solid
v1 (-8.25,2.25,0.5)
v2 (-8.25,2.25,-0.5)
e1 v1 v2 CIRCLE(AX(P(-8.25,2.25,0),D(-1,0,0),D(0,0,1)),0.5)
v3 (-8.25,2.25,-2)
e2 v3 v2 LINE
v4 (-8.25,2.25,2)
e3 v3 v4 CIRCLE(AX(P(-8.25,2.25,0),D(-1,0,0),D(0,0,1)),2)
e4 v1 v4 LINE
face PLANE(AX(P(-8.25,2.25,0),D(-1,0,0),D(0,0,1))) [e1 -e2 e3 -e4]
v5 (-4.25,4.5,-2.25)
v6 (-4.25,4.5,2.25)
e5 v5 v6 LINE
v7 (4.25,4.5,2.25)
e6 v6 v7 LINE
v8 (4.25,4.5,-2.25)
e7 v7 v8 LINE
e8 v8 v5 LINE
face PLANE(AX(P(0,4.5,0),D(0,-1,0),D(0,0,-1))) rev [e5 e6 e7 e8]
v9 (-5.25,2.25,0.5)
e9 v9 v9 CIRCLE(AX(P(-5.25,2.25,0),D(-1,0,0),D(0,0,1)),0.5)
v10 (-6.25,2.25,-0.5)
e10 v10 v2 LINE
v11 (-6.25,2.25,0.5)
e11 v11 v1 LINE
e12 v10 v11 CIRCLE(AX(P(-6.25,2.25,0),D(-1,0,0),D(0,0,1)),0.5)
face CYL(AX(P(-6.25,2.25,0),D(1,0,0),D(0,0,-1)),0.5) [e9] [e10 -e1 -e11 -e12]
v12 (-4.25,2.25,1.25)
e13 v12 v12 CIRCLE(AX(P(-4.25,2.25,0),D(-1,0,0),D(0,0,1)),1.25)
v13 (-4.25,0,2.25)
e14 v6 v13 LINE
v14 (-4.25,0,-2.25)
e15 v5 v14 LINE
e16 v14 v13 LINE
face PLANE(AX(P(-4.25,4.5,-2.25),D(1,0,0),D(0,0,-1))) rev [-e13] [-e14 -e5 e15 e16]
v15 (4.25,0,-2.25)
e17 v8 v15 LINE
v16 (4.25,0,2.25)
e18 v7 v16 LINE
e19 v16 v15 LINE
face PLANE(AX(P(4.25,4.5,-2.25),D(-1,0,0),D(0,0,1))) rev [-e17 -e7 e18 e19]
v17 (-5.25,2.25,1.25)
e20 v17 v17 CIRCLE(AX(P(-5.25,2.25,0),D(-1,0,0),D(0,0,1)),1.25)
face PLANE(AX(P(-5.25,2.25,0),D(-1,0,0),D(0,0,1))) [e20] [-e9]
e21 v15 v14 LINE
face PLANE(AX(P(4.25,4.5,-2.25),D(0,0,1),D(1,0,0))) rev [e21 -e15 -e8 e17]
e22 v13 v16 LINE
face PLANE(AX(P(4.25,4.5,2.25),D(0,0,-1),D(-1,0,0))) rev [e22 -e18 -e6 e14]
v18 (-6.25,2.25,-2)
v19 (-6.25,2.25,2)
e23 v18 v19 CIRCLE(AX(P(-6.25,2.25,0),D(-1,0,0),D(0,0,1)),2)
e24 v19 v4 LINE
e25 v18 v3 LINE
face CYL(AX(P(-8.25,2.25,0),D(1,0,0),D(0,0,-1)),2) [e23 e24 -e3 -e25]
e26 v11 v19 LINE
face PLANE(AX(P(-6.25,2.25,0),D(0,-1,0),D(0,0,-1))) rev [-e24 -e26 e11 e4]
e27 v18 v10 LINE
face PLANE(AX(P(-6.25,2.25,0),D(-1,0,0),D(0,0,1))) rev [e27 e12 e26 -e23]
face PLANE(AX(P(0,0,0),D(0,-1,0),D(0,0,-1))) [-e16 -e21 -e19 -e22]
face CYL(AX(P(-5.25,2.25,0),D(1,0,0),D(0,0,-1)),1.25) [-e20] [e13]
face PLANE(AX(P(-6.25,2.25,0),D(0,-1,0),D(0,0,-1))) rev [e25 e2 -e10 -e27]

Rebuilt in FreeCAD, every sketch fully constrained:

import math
import FreeCAD as App
import Part
import Sketcher

V = App.Vector
Q = App.Units.Quantity


def add_polygon(sketch, points):
    """Adds a closed chain of lines whose ends are joined by coincident constraints."""
    first, n = sketch.GeometryCount, len(points)
    for a, b in zip(points, points[1:] + points[:1]):
        sketch.addGeometry(Part.LineSegment(App.Vector(*a, 0), App.Vector(*b, 0)), False)
    for i in range(n):
        sketch.addConstraint(Sketcher.Constraint("Coincident", first + i, 2, first + (i + 1) % n, 1))

doc = App.newDocument("Part")
params = doc.addObject("Spreadsheet::Sheet", "Params")
for row, (alias, value) in enumerate([
    ("sketch1_width", "8.5 mm"),
    ("sketch1_height", "4.5 mm"),
    ("pad1_length", "4.5 mm"),
    ("sketch2_diameter", "2.5 mm"),
    ("pad2_length", "1 mm"),
    ("sketch3_diameter", "1 mm"),
    ("pad3_length", "1 mm"),
    ("sketch4_diameter", "4 mm"),
    ("pad4_length", "2 mm"),
    ("sketch5_radius", "2 mm"),
    ("sketch5_radius2", "0.5 mm"),
    ("pocket1_length", "2 mm"),
], start=1):
    params.set(f"A{row}", alias)
    params.set(f"B{row}", "=" + value)
    params.setAlias(f"B{row}", alias)

body = doc.addObject("PartDesign::Body", "Body")

sketch1 = doc.addObject("Sketcher::SketchObject", "Sketch")
body.addObject(sketch1)
sketch1.AttachmentSupport = (doc.XZ_Plane, [""])
sketch1.MapMode = "FlatFace"
add_polygon(sketch1, [(-4.2, -2.2), (-4.2, 2.2), (4.2, 2.2), (4.2, -2.2)])
sketch1.addConstraint(Sketcher.Constraint("Vertical", 0))
sketch1.addConstraint(Sketcher.Constraint("Horizontal", 1))
sketch1.addConstraint(Sketcher.Constraint("Vertical", 2))
sketch1.addConstraint(Sketcher.Constraint("Horizontal", 3))
sketch1.addConstraint(Sketcher.Constraint("Symmetric", 0, 2, 2, 2, -1, 1))
sketch1.addConstraint(Sketcher.Constraint("DistanceX", 1, 1, 1, 2, Q("8.5 mm")))
sketch1.addConstraint(Sketcher.Constraint("DistanceY", 0, 1, 0, 2, Q("4.5 mm")))
sketch1.setExpression("Constraints[9]", "Params.sketch1_width")
sketch1.setExpression("Constraints[10]", "Params.sketch1_height")
pad1 = doc.addObject("PartDesign::Pad", "Pad")
body.addObject(pad1)
pad1.Profile = sketch1
pad1.setExpression("Length", "Params.pad1_length")
pad1.Reversed = True

sketch2 = doc.addObject("Sketcher::SketchObject", "Sketch001")
body.addObject(sketch2)
sketch2.AttachmentSupport = (doc.YZ_Plane, [""])
sketch2.MapMode = "FlatFace"
sketch2.AttachmentOffset = App.Placement(V(0, 0, -4.25), App.Rotation())
sketch2.addGeometry(Part.Circle(V(2.2, 0, 0), V(0, 0, 1), 1.2), False)
sketch2.addConstraint(Sketcher.Constraint("PointOnObject", 0, 3, -1))
sketch2.addConstraint(Sketcher.Constraint("Diameter", 0, Q("2.5 mm")))
sketch2.addConstraint(Sketcher.Constraint("DistanceX", -1, 1, 0, 3, Q("2.25 mm")))
sketch2.setExpression("Constraints[1]", "Params.sketch2_diameter")
pad2 = doc.addObject("PartDesign::Pad", "Pad001")
body.addObject(pad2)
pad2.Profile = sketch2
pad2.setExpression("Length", "Params.pad2_length")
pad2.Reversed = True

sketch3 = doc.addObject("Sketcher::SketchObject", "Sketch002")
body.addObject(sketch3)
sketch3.AttachmentSupport = (doc.YZ_Plane, [""])
sketch3.MapMode = "FlatFace"
sketch3.AttachmentOffset = App.Placement(V(0, 0, -5.25), App.Rotation())
sketch3.addGeometry(Part.Circle(V(2.2, 0, 0), V(0, 0, 1), 0.5), False)
sketch3.addConstraint(Sketcher.Constraint("PointOnObject", 0, 3, -1))
sketch3.addConstraint(Sketcher.Constraint("Diameter", 0, Q("1 mm")))
sketch3.addConstraint(Sketcher.Constraint("DistanceX", -1, 1, 0, 3, Q("2.25 mm")))
sketch3.setExpression("Constraints[1]", "Params.sketch3_diameter")
pad3 = doc.addObject("PartDesign::Pad", "Pad002")
body.addObject(pad3)
pad3.Profile = sketch3
pad3.setExpression("Length", "Params.pad3_length")
pad3.Reversed = True

sketch4 = doc.addObject("Sketcher::SketchObject", "Sketch003")
body.addObject(sketch4)
sketch4.AttachmentSupport = (doc.YZ_Plane, [""])
sketch4.MapMode = "FlatFace"
sketch4.AttachmentOffset = App.Placement(V(0, 0, -6.25), App.Rotation())
sketch4.addGeometry(Part.Circle(V(2.2, 0, 0), V(0, 0, 1), 2), False)
sketch4.addConstraint(Sketcher.Constraint("PointOnObject", 0, 3, -1))
sketch4.addConstraint(Sketcher.Constraint("Diameter", 0, Q("4 mm")))
sketch4.addConstraint(Sketcher.Constraint("DistanceX", -1, 1, 0, 3, Q("2.25 mm")))
sketch4.setExpression("Constraints[1]", "Params.sketch4_diameter")
pad4 = doc.addObject("PartDesign::Pad", "Pad003")
body.addObject(pad4)
pad4.Profile = sketch4
pad4.setExpression("Length", "Params.pad4_length")
pad4.Reversed = True

sketch5 = doc.addObject("Sketcher::SketchObject", "Sketch004")
body.addObject(sketch5)
sketch5.AttachmentSupport = (doc.YZ_Plane, [""])
sketch5.MapMode = "FlatFace"
sketch5.AttachmentOffset = App.Placement(V(0, 0, -6.25), App.Rotation())
sketch5.addGeometry(Part.ArcOfCircle(Part.Circle(V(2.2, 0, 0), V(0, 0, 1), 2), math.radians(-90), math.radians(90)), False)
sketch5.addGeometry(Part.LineSegment(V(2.2, -2, 0), V(2.2, -0.5, 0)), False)
sketch5.addGeometry(Part.ArcOfCircle(Part.Circle(V(2.2, 0, 0), V(0, 0, 1), 0.5), math.radians(-90), math.radians(90)), False)
sketch5.addGeometry(Part.LineSegment(V(2.2, 0.5, 0), V(2.2, 2, 0)), False)
sketch5.addConstraint(Sketcher.Constraint("Coincident", 0, 1, 1, 1))
sketch5.addConstraint(Sketcher.Constraint("Coincident", 1, 2, 2, 1))
sketch5.addConstraint(Sketcher.Constraint("Coincident", 2, 2, 3, 1))
sketch5.addConstraint(Sketcher.Constraint("Coincident", 3, 2, 0, 2))
sketch5.addConstraint(Sketcher.Constraint("Vertical", 1))
sketch5.addConstraint(Sketcher.Constraint("Vertical", 3))
sketch5.addConstraint(Sketcher.Constraint("Coincident", 2, 3, 0, 3))
sketch5.addConstraint(Sketcher.Constraint("Symmetric", 1, 2, 2, 2, -1))
sketch5.addConstraint(Sketcher.Constraint("Vertical", 2, 3, 0, 1))
sketch5.addConstraint(Sketcher.Constraint("Radius", 0, Q("2 mm")))
sketch5.addConstraint(Sketcher.Constraint("Radius", 2, Q("0.5 mm")))
sketch5.addConstraint(Sketcher.Constraint("DistanceX", -1, 1, 0, 3, Q("2.25 mm")))
sketch5.setExpression("Constraints[9]", "Params.sketch5_radius")
sketch5.setExpression("Constraints[10]", "Params.sketch5_radius2")
pocket1 = doc.addObject("PartDesign::Pocket", "Pocket")
body.addObject(pocket1)
pocket1.Profile = sketch5
pocket1.setExpression("Length", "Params.pocket1_length")

doc.recompute()
